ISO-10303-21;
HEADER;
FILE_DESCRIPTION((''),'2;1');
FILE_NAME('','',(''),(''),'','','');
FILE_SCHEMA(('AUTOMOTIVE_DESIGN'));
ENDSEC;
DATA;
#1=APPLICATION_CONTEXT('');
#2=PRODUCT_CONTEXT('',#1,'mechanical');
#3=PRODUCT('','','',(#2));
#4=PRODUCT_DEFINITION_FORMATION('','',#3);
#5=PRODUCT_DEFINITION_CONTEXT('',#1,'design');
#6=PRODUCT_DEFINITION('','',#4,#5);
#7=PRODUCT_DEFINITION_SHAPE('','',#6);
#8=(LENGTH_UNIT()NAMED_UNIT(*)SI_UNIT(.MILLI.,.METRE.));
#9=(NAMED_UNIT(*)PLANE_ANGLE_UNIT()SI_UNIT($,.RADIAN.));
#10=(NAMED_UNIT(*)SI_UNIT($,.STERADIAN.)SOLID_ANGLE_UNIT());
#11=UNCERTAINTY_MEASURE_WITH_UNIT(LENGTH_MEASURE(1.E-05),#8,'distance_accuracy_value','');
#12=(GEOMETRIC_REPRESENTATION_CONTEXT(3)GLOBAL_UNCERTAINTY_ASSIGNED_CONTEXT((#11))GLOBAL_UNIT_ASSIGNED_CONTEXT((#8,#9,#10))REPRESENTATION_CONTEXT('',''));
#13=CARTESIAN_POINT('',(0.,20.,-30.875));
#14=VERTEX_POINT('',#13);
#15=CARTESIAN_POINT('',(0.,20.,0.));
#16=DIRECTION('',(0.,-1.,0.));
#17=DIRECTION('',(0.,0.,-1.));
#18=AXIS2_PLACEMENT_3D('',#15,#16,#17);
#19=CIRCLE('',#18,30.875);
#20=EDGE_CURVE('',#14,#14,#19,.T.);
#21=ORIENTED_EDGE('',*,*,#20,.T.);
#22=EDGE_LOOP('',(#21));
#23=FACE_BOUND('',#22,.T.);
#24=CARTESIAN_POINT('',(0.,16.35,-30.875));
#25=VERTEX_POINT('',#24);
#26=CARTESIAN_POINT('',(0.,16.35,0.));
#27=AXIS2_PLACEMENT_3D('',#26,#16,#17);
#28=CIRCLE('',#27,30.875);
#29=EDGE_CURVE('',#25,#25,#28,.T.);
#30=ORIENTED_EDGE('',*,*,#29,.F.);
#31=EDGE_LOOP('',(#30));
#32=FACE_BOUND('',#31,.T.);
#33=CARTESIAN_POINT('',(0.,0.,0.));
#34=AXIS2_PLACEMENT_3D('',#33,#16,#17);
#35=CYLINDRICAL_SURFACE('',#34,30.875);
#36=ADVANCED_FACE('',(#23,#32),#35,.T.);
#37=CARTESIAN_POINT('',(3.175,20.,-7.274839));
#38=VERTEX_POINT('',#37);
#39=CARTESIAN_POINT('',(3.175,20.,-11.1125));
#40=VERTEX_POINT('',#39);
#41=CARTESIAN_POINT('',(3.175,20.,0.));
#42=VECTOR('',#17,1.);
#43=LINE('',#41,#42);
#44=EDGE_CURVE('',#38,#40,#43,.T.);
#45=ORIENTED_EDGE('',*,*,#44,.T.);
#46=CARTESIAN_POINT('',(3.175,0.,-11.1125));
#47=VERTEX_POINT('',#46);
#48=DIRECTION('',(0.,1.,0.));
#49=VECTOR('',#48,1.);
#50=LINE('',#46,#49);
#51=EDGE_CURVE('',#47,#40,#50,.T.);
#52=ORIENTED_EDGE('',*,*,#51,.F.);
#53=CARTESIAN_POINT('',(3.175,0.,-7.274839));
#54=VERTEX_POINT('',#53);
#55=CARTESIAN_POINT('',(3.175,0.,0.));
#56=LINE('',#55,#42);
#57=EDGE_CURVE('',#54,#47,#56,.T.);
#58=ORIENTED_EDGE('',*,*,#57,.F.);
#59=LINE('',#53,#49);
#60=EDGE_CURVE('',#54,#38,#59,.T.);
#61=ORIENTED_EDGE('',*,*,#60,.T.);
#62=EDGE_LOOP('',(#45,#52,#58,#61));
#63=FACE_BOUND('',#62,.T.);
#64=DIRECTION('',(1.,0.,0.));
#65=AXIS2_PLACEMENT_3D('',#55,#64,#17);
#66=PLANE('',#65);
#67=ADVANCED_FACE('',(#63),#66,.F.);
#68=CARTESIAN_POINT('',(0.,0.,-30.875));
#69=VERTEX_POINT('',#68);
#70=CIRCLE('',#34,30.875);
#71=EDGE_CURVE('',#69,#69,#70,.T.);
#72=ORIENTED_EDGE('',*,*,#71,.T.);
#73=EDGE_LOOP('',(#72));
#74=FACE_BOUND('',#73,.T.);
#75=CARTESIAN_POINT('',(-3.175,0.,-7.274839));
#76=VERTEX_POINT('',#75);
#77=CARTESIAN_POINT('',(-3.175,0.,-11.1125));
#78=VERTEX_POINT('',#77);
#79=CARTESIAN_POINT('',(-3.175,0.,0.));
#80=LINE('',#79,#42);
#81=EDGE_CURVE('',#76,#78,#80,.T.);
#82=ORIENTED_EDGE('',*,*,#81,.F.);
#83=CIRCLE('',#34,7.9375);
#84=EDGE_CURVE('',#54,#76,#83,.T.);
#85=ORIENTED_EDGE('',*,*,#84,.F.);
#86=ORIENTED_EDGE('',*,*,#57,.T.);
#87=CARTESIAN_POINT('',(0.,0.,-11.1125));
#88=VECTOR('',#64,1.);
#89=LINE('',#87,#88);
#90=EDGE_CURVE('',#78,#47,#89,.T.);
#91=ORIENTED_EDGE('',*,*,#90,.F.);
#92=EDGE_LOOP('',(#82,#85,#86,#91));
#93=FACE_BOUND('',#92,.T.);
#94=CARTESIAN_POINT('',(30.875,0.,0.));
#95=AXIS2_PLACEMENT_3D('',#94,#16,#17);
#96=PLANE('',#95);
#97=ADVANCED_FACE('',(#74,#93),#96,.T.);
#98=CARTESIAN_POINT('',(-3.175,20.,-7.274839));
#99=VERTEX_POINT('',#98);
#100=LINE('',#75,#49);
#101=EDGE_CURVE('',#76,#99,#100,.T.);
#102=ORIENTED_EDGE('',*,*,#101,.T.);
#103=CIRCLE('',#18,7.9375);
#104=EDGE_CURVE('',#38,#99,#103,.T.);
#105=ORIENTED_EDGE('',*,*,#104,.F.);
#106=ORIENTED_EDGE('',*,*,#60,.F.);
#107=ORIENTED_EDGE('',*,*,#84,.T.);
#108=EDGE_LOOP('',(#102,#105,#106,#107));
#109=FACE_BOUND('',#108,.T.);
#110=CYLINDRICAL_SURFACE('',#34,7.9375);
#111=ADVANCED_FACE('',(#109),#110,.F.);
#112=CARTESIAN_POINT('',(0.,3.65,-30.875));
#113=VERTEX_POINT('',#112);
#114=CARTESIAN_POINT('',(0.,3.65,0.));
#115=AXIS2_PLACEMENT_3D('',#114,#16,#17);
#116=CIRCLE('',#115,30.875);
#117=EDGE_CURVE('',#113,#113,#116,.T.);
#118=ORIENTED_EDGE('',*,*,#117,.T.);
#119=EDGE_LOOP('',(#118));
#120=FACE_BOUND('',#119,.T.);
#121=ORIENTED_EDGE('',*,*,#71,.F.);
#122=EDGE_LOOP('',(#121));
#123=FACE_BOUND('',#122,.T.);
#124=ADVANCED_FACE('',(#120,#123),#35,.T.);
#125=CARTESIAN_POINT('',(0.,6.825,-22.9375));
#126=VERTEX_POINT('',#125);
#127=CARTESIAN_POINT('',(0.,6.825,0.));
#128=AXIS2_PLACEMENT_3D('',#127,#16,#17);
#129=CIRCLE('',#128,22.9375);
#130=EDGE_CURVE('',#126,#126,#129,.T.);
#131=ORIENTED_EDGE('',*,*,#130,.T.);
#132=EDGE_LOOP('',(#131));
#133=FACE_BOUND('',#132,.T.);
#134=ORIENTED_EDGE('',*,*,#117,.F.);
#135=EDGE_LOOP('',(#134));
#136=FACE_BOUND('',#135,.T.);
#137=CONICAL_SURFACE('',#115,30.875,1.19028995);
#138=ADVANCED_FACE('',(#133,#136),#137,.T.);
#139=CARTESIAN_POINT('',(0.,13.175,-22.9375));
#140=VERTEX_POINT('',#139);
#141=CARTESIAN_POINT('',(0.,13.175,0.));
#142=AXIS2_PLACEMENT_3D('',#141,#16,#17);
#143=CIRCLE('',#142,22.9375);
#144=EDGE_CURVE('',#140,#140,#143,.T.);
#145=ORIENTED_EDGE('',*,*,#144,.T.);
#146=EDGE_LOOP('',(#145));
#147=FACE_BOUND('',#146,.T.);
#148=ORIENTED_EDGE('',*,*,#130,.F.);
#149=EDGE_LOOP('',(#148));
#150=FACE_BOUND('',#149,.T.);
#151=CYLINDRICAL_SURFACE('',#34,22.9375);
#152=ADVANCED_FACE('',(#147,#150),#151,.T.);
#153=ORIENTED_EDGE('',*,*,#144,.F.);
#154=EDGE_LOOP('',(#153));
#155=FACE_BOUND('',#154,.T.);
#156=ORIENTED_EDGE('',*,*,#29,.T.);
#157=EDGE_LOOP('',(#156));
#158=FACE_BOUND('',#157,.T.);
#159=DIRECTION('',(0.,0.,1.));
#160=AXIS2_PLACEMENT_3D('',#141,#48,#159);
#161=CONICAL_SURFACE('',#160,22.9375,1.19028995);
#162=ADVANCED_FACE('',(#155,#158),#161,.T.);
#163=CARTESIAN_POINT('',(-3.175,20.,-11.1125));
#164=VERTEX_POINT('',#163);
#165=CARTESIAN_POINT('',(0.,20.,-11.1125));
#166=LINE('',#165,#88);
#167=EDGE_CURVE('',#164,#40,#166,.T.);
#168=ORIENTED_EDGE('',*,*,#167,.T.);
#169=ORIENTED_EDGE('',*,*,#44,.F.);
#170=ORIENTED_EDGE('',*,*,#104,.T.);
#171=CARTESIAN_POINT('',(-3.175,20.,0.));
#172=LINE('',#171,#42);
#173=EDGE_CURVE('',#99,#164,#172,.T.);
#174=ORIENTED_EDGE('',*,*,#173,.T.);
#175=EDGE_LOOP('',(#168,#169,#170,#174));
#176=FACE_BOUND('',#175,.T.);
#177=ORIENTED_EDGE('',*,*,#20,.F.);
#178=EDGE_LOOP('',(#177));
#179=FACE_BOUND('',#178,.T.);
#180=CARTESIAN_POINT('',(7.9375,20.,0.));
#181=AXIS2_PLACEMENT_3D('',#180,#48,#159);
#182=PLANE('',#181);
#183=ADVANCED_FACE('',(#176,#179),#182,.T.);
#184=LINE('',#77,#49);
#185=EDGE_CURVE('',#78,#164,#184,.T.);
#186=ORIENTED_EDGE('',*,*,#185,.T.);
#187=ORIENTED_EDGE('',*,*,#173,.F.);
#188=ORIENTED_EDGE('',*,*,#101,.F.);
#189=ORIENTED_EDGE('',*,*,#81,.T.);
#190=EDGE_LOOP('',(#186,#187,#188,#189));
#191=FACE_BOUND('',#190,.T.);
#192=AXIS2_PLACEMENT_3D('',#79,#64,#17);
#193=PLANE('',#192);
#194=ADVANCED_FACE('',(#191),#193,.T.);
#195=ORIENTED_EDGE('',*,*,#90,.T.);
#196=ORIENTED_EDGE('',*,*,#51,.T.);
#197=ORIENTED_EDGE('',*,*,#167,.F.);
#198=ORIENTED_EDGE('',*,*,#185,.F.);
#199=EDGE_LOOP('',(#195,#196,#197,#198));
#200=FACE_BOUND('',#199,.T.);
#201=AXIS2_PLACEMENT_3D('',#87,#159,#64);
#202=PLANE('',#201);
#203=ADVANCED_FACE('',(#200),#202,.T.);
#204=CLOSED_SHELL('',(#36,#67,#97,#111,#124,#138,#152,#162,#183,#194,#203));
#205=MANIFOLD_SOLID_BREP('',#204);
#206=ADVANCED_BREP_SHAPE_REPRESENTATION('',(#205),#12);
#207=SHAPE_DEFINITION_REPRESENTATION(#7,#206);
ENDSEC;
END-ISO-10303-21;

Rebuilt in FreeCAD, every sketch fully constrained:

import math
import FreeCAD as App
import Part
import Sketcher

V = App.Vector

doc = App.newDocument("Part")
body = doc.addObject("PartDesign::Body", "Body")

# Sketch on XY plane
sketch1 = body.newObject("Sketcher::SketchObject", "Sketch")
sketch1.AttachmentSupport = (doc.getObject("XY_Plane"), [""])
sketch1.MapMode = "FlatFace"
sketch1.addGeometry([
    Part.LineSegment(V(7.9, 20, 0), V(7.9, 0, 0)),  # 0
    Part.LineSegment(V(7.9, 0, 0), V(30.9, 0, 0)),  # 1
    Part.LineSegment(V(30.9, 0, 0), V(30.9, 3.6, 0)),  # 2
    Part.LineSegment(V(30.9, 3.6, 0), V(22.9, 6.8, 0)),  # 3
    Part.LineSegment(V(22.9, 6.8, 0), V(22.9, 13.2, 0)),  # 4
    Part.LineSegment(V(22.9, 13.2, 0), V(30.9, 16.4, 0)),  # 5
    Part.LineSegment(V(30.9, 16.4, 0), V(30.9, 20, 0)),  # 6
    Part.LineSegment(V(30.9, 20, 0), V(7.9, 20, 0)),  # 7
], False)
sketch1.addConstraint([
    Sketcher.Constraint("Coincident", 0, 2, 1, 1),
    Sketcher.Constraint("Coincident", 1, 2, 2, 1),
    Sketcher.Constraint("Coincident", 2, 2, 3, 1),
    Sketcher.Constraint("Coincident", 3, 2, 4, 1),
    Sketcher.Constraint("Coincident", 4, 2, 5, 1),
    Sketcher.Constraint("Coincident", 5, 2, 6, 1),
    Sketcher.Constraint("Coincident", 6, 2, 7, 1),
    Sketcher.Constraint("Coincident", 7, 2, 0, 1),
    Sketcher.Constraint("Vertical", 0),
    Sketcher.Constraint("Horizontal", 1),
    Sketcher.Constraint("Vertical", 2),
    Sketcher.Constraint("Vertical", 4),
    Sketcher.Constraint("Vertical", 6),
    Sketcher.Constraint("Horizontal", 7),
    Sketcher.Constraint("PointOnObject", 0, 2, -1),
    Sketcher.Constraint("Vertical", 2, 2, 5, 2),
    Sketcher.Constraint("Equal", 2, 6),
    Sketcher.Constraint("Equal", 3, 5),
    Sketcher.Constraint("DistanceY", 0, 2, 0, 1, 20.0),
    Sketcher.Constraint("DistanceX", 0, 2, 3, 2, 15.0),
    Sketcher.Constraint("DistanceY", 2, 1, 2, 2, 3.65),
    Sketcher.Constraint("DistanceY", 4, 1, 4, 2, 6.35),
    Sketcher.Constraint("DistanceX", 1, 1, 1, 2, 22.9375),
    Sketcher.Constraint("DistanceX", -1, 1, 1, 2, 30.875),
])
revolution = body.newObject("PartDesign::Revolution", "Revolution")
revolution.Profile = sketch1
revolution.ReferenceAxis = (sketch1, ["V_Axis"])
revolution.Angle = 360

# Sketch on XZ plane
sketch2 = body.newObject("Sketcher::SketchObject", "Sketch001")
sketch2.AttachmentSupport = (doc.getObject("XZ_Plane"), [""])
sketch2.MapMode = "FlatFace"
sketch2.AttachmentOffset = App.Placement(V(0, 0, -20), App.Rotation())
sketch2.addGeometry([
    Part.LineSegment(V(-3.2, -11.1, 0), V(-3.2, -7.3, 0)),
    Part.ArcOfCircle(Part.Circle(V(0, 0, 0), V(0, 0, 1), 7.9), math.radians(-114), math.radians(-66)),
    Part.LineSegment(V(3.2, -7.3, 0), V(3.2, -11.1, 0)),
    Part.LineSegment(V(3.2, -11.1, 0), V(-3.2, -11.1, 0)),
], False)
sketch2.addConstraint([
    Sketcher.Constraint("Coincident", 0, 2, 1, 1),
    Sketcher.Constraint("Coincident", 1, 2, 2, 1),
    Sketcher.Constraint("Coincident", 2, 2, 3, 1),
    Sketcher.Constraint("Coincident", 3, 2, 0, 1),
    Sketcher.Constraint("Vertical", 0),
    Sketcher.Constraint("Vertical", 2),
    Sketcher.Constraint("Horizontal", 3),
    Sketcher.Constraint("Coincident", 1, 3, -1, 1),
    Sketcher.Constraint("Horizontal", 0, 2, 1, 2),
    Sketcher.Constraint("DistanceX", 3, 2, 3, 1, 6.35),
    Sketcher.Constraint("Radius", 1, 7.9375),
    Sketcher.Constraint("DistanceY", 0, 1, 0, 2, 3.837661),
])
pocket1 = body.newObject("PartDesign::Pocket", "Pocket")
pocket1.Profile = sketch2
pocket1.Type = "ThroughAll"
pocket1.Reversed = True

doc.recompute()
